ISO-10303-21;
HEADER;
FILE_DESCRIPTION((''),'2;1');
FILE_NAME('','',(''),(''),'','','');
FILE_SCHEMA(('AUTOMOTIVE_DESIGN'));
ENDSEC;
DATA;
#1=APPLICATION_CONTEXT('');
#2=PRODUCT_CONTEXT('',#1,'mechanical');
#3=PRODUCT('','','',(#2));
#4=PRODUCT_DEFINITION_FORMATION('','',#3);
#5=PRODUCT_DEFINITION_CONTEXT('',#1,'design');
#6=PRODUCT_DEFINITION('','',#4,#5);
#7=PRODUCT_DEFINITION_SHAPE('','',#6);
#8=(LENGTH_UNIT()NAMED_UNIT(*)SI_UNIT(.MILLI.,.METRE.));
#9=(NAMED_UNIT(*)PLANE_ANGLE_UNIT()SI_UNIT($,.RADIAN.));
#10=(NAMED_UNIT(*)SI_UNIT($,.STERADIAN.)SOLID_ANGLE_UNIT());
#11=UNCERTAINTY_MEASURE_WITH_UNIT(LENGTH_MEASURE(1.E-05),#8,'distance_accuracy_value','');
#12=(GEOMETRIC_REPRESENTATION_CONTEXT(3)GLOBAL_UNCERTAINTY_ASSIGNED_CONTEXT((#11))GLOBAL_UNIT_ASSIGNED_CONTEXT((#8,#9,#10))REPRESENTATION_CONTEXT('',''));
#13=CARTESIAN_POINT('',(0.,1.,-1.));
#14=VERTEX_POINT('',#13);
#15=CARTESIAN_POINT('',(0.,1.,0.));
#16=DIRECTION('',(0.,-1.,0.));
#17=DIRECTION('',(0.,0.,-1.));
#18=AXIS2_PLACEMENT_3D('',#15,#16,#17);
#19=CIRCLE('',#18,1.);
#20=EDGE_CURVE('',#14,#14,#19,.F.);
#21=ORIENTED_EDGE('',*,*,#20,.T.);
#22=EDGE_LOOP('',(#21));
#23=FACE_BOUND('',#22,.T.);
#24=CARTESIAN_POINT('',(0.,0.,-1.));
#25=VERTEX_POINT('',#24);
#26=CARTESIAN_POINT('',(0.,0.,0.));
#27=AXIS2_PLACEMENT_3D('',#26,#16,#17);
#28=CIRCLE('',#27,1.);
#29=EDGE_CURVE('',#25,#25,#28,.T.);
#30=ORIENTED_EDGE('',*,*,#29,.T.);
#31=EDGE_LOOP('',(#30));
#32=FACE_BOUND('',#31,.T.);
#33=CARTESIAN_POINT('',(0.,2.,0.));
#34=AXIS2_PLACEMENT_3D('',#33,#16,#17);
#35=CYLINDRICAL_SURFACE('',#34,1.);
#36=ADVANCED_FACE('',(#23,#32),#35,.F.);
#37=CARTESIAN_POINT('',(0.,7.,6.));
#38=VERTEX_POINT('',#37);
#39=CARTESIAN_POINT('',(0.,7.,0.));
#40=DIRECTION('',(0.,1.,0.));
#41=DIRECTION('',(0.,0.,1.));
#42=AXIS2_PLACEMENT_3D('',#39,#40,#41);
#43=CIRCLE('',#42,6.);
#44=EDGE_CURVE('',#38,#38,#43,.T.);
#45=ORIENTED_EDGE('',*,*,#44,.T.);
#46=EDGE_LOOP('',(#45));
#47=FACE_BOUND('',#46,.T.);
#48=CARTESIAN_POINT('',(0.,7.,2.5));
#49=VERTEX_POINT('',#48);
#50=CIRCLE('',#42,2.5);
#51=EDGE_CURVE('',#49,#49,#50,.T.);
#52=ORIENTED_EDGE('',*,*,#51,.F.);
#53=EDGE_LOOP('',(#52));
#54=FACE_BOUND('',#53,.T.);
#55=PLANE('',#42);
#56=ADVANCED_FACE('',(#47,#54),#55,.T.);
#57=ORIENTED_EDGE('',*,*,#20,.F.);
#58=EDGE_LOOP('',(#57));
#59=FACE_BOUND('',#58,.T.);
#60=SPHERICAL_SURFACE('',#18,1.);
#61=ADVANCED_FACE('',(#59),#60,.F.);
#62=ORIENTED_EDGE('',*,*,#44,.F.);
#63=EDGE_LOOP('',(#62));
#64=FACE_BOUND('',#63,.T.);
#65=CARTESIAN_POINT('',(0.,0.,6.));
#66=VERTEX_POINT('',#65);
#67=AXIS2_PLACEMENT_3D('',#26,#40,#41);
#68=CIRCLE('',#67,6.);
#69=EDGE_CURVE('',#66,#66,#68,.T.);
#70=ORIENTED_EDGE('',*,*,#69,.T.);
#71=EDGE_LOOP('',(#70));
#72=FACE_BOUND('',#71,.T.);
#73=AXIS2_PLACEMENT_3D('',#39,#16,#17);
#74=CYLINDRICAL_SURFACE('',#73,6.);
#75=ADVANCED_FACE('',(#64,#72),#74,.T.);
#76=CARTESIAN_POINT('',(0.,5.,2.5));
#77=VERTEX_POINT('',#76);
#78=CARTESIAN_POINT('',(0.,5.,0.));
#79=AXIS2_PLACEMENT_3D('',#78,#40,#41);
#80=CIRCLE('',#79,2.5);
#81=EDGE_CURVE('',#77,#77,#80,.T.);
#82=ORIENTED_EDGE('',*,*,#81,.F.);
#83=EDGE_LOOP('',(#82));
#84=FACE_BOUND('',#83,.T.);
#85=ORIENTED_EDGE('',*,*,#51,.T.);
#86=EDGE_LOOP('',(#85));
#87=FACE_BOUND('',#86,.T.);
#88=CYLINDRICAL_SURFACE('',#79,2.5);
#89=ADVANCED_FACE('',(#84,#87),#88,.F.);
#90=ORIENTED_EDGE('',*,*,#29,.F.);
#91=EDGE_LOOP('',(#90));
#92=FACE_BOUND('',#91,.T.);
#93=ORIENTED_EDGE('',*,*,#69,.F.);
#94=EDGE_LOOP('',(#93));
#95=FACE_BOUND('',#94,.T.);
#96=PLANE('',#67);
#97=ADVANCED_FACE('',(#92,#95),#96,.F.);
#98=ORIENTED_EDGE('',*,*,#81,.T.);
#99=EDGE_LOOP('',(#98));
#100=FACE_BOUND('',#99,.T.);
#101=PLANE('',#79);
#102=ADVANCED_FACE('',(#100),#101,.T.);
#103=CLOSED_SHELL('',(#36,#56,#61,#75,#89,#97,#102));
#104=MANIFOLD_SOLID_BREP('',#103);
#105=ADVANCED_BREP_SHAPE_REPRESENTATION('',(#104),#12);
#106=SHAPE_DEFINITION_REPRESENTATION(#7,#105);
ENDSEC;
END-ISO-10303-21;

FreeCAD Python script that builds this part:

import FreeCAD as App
import Part
import Sketcher
from FreeCAD import Vector
Q = App.Units.Quantity


def edges_at(feature, points):
    """Names of the edges that pass closest to the given points."""
    edges = feature.Shape.Edges
    near = lambda p: min(range(len(edges)), key=lambda i: edges[i].distToShape(Part.Vertex(*p))[0])
    return sorted({f"Edge{near(p) + 1}" for p in points})

doc = App.newDocument("Part")
params = doc.addObject("Spreadsheet::Sheet", "Params")
for row, (alias, value) in enumerate([
    ("sketch1_diameter", "12 mm"),
    ("pad1_length", "7 mm"),
    ("sketch2_diameter", "5 mm"),
    ("pocket1_length", "2 mm"),
    ("sketch3_diameter", "2 mm"),
    ("pocket2_length", "2 mm"),
    ("fillet_radius", "1 mm"),
], start=1):
    params.set(f"A{row}", alias)
    params.set(f"B{row}", "=" + value)
    params.setAlias(f"B{row}", alias)

body = doc.addObject("PartDesign::Body", "Body")

# Sketch on XZ plane
sketch1 = body.newObject("Sketcher::SketchObject", "Sketch")
sketch1.AttachmentSupport = (doc.getObject("XZ_Plane"), [""])
sketch1.MapMode = "FlatFace"
sketch1.addGeometry(Part.Circle(Vector(0, 0, 0), Vector(0, 0, 1), 6), False)
sketch1.addConstraint([
    Sketcher.Constraint("Coincident", 0, 3, -1, 1),
    Sketcher.Constraint("Diameter", 0, Q("12 mm")),
])
sketch1.setExpression("Constraints[1]", "Params.sketch1_diameter")
pad1 = body.newObject("PartDesign::Pad", "Pad")
pad1.Profile = sketch1
pad1.setExpression("Length", "Params.pad1_length")
pad1.Reversed = True

# Sketch on XZ plane
sketch2 = body.newObject("Sketcher::SketchObject", "Sketch001")
sketch2.AttachmentSupport = (doc.getObject("XZ_Plane"), [""])
sketch2.MapMode = "FlatFace"
sketch2.AttachmentOffset = App.Placement(Vector(0, 0, -7), App.Rotation())
sketch2.addGeometry(Part.Circle(Vector(0, 0, 0), Vector(0, 0, 1), 2.5), False)
sketch2.addConstraint([
    Sketcher.Constraint("Coincident", 0, 3, -1, 1),
    Sketcher.Constraint("Diameter", 0, Q("5 mm")),
])
sketch2.setExpression("Constraints[1]", "Params.sketch2_diameter")
pocket1 = body.newObject("PartDesign::Pocket", "Pocket")
pocket1.Profile = sketch2
pocket1.setExpression("Length", "Params.pocket1_length")
pocket1.Reversed = True

# Sketch on XZ plane
sketch3 = body.newObject("Sketcher::SketchObject", "Sketch002")
sketch3.AttachmentSupport = (doc.getObject("XZ_Plane"), [""])
sketch3.MapMode = "FlatFace"
sketch3.addGeometry(Part.Circle(Vector(0, 0, 0), Vector(0, 0, 1), 1), False)
sketch3.addConstraint([
    Sketcher.Constraint("Coincident", 0, 3, -1, 1),
    Sketcher.Constraint("Diameter", 0, Q("2 mm")),
])
sketch3.setExpression("Constraints[1]", "Params.sketch3_diameter")
pocket2 = body.newObject("PartDesign::Pocket", "Pocket001")
pocket2.Profile = sketch3
pocket2.setExpression("Length", "Params.pocket2_length")
doc.recompute()

fillet = body.newObject("PartDesign::Fillet", "Fillet")
fillet.Base = (pocket2, edges_at(pocket2, [(-1, 2, 0)]))
fillet.setExpression("Radius", "Params.fillet_radius")

doc.recompute()
